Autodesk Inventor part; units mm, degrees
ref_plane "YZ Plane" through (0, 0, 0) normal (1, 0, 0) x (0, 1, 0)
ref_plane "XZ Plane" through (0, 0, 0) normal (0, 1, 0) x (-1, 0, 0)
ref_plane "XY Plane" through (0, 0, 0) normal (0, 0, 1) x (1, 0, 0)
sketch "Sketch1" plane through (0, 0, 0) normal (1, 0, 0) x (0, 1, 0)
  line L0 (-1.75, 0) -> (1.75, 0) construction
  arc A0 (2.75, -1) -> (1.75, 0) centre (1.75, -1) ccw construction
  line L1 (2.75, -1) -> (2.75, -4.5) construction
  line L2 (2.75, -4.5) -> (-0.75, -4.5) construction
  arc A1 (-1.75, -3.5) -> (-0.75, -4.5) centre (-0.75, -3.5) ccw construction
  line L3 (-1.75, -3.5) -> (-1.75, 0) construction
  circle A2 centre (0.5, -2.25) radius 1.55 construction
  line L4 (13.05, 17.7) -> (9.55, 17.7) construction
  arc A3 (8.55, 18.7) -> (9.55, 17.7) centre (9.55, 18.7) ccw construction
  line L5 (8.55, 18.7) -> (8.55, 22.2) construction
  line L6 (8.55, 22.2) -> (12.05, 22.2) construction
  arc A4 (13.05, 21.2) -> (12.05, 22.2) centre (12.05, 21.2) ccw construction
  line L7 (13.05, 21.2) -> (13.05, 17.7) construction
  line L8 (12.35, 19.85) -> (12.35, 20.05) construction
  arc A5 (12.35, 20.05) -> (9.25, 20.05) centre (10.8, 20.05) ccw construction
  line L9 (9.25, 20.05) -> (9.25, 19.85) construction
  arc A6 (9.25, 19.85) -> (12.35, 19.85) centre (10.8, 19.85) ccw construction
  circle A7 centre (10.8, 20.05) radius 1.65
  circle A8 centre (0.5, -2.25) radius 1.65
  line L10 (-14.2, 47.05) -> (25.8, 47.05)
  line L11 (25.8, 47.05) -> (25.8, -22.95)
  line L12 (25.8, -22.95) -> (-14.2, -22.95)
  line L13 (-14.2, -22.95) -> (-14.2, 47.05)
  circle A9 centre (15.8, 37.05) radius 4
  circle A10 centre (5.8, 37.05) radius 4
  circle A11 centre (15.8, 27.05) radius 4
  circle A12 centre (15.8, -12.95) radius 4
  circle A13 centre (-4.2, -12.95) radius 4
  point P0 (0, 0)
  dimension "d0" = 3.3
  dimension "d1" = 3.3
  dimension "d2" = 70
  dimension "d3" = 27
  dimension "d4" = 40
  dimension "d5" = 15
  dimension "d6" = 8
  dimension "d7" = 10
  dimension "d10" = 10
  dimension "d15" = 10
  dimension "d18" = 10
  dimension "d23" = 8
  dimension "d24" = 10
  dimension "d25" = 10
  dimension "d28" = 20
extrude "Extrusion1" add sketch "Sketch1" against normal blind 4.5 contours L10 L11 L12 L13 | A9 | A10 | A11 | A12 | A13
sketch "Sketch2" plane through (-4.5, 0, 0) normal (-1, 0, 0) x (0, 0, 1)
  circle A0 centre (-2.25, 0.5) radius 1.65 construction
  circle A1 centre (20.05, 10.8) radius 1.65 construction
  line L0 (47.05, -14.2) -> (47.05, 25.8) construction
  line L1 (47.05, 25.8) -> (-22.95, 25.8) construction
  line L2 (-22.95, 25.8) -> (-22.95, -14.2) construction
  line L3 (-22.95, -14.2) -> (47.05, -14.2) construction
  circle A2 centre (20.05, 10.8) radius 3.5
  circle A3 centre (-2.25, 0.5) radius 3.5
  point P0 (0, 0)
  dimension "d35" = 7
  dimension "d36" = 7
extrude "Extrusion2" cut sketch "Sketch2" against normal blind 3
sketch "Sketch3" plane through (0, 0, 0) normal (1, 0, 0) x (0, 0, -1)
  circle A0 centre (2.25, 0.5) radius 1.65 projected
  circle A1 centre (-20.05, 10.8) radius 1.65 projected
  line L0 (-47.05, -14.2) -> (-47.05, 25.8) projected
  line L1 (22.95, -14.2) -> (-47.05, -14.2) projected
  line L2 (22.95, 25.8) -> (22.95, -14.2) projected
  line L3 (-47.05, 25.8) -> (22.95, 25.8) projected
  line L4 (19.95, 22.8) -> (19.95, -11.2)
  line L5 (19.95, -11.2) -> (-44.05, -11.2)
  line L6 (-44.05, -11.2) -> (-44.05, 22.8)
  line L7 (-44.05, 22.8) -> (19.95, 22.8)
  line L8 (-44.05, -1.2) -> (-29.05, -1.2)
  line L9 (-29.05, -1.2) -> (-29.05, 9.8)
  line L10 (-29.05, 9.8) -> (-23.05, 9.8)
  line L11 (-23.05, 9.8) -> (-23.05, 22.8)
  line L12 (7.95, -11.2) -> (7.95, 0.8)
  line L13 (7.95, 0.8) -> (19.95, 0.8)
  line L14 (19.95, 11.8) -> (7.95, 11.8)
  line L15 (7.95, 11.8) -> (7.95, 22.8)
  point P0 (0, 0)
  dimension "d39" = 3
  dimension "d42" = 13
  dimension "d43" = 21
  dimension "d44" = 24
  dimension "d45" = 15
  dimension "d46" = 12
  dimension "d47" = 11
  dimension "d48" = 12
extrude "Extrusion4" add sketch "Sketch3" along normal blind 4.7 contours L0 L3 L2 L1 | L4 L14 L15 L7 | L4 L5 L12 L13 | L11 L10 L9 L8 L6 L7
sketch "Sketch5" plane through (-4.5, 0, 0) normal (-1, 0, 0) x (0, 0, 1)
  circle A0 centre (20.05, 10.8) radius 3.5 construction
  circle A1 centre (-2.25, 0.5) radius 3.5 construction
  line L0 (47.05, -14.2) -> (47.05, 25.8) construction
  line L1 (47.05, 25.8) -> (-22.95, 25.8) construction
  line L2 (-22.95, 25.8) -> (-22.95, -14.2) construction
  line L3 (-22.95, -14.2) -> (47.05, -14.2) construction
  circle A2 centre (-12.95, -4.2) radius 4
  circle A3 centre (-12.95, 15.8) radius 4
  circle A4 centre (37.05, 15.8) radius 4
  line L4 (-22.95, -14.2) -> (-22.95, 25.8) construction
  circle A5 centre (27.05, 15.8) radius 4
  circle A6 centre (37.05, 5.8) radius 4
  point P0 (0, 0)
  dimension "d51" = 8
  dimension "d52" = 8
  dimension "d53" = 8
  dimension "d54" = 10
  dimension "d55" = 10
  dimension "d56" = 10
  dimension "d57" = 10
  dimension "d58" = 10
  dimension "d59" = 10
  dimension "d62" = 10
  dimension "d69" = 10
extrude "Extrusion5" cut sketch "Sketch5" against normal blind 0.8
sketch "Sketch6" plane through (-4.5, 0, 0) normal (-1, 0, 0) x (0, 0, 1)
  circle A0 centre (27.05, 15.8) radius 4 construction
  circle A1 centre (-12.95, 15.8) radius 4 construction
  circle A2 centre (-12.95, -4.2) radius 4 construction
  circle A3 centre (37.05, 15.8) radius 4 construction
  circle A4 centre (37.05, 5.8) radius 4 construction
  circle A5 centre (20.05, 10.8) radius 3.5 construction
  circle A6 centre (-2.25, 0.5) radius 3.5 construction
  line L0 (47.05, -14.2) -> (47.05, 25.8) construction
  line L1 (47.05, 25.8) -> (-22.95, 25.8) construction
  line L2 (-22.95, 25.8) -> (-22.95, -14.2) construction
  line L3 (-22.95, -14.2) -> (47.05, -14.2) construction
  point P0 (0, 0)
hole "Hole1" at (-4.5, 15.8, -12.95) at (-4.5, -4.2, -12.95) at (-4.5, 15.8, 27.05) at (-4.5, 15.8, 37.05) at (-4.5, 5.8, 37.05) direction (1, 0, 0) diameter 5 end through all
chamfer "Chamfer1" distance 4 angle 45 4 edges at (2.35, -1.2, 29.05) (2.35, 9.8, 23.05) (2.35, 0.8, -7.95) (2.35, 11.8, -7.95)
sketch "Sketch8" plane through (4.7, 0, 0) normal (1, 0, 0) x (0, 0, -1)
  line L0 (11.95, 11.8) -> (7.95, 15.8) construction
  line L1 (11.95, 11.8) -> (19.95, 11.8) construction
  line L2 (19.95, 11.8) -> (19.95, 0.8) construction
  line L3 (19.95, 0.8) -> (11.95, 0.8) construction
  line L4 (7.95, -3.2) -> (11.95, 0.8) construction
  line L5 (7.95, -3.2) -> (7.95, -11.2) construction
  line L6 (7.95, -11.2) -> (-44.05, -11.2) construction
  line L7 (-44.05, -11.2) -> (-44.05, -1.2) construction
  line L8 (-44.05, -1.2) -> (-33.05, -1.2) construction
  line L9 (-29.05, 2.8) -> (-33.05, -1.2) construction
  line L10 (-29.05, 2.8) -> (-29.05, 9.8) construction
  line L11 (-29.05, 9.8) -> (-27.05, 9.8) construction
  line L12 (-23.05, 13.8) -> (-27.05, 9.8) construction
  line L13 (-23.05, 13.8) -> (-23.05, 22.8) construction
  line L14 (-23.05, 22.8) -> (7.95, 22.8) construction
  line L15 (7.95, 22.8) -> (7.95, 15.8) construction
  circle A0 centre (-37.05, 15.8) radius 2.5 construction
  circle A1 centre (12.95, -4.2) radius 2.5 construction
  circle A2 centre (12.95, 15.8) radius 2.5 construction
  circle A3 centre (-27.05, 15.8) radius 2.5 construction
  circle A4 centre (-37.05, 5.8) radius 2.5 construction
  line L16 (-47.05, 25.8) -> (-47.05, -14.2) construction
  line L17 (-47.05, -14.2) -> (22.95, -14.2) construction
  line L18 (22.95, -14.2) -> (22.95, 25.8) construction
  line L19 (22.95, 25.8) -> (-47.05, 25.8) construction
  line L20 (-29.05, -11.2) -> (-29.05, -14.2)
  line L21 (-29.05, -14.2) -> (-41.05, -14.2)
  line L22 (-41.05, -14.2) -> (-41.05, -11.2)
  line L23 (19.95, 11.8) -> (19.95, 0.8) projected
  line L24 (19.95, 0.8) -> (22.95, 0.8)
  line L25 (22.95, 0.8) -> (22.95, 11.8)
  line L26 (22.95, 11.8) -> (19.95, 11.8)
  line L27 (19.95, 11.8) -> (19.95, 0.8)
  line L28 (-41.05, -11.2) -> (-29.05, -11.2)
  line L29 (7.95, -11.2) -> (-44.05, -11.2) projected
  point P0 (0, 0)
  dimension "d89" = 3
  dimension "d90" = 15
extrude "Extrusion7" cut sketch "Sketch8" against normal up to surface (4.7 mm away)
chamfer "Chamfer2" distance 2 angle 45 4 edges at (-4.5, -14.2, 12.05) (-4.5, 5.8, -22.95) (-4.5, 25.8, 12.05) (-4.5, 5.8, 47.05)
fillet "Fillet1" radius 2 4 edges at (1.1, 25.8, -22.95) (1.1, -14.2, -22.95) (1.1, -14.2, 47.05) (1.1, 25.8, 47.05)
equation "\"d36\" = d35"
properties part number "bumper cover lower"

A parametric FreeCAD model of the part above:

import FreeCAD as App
import Part
import Sketcher
from FreeCAD import Vector


def edges_at(feature, points):
    """Names of the edges that pass closest to the given points."""
    edges = feature.Shape.Edges
    near = lambda p: min(range(len(edges)), key=lambda i: edges[i].distToShape(Part.Vertex(*p))[0])
    return sorted({f"Edge{near(p) + 1}" for p in points})

doc = App.newDocument("Part")
params = doc.addObject("Spreadsheet::Sheet", "Params")
for row, (alias, value) in enumerate([
    ("sketch1_diameter", "3.3 mm"),
    ("sketch1_width", "40 mm"),
    ("sketch1_height", "70 mm"),
    ("pad1_length", "4.5 mm"),
    ("sketch2_diameter", "7 mm"),
    ("pocket1_length", "3 mm"),
    ("sketch3_width", "11 mm"),
    ("sketch3_width2", "12 mm"),
    ("sketch3_width3", "13 mm"),
    ("sketch3_height", "15 mm"),
    ("sketch3_height2", "70 mm"),
    ("pad2_length", "4.7 mm"),
    ("sketch4_diameter", "8 mm"),
    ("pocket2_length", "0.8 mm"),
    ("sketch5_diameter", "5 mm"),
    ("hole_diameter", "5 mm"),
    ("chamfer_size", "4 mm"),
    ("sketch6_width", "3 mm"),
    ("sketch6_width2", "11 mm"),
    ("sketch6_height", "12 mm"),
    ("pocket3_length", "4.7 mm"),
    ("chamfer2_size", "2 mm"),
    ("fillet_radius", "2 mm"),
], start=1):
    params.set(f"A{row}", alias)
    params.set(f"B{row}", "=" + value)
    params.setAlias(f"B{row}", alias)

body = doc.addObject("PartDesign::Body", "Body")

# Sketch on YZ plane
sketch1 = doc.addObject("Sketcher::SketchObject", "Sketch")
body.addObject(sketch1)
sketch1.AttachmentSupport = (doc.YZ_Plane, [""])
sketch1.MapMode = "FlatFace"
sketch1.addGeometry(Part.LineSegment(Vector(25.8, 47, 0), Vector(-14.2, 47, 0)), False)
sketch1.addGeometry(Part.LineSegment(Vector(-14.2, 47, 0), Vector(-14.2, -22.9, 0)), False)
sketch1.addGeometry(Part.LineSegment(Vector(-14.2, -22.9, 0), Vector(25.8, -22.9, 0)), False)
sketch1.addGeometry(Part.LineSegment(Vector(25.8, -22.9, 0), Vector(25.8, 47, 0)), False)
sketch1.addGeometry(Part.Circle(Vector(0.5, -2.2, 0), Vector(0, 0, 1), 1.6), False)
sketch1.addGeometry(Part.Circle(Vector(10.8, 20.1, 0), Vector(0, 0, 1), 1.6), False)
sketch1.addConstraint(Sketcher.Constraint("Coincident", 0, 2, 1, 1))
sketch1.addConstraint(Sketcher.Constraint("Coincident", 1, 2, 2, 1))
sketch1.addConstraint(Sketcher.Constraint("Coincident", 2, 2, 3, 1))
sketch1.addConstraint(Sketcher.Constraint("Coincident", 3, 2, 0, 1))
sketch1.addConstraint(Sketcher.Constraint("Horizontal", 0))
sketch1.addConstraint(Sketcher.Constraint("Vertical", 1))
sketch1.addConstraint(Sketcher.Constraint("Horizontal", 2))
sketch1.addConstraint(Sketcher.Constraint("Vertical", 3))
sketch1.addConstraint(Sketcher.Constraint("Equal", 4, 5))
sketch1.addConstraint(Sketcher.Constraint("Diameter", 4, 3.3))
sketch1.addConstraint(Sketcher.Constraint("DistanceX", 0, 2, 0, 1, 40.0))
sketch1.addConstraint(Sketcher.Constraint("DistanceY", 1, 2, 1, 1, 70.0))
sketch1.addConstraint(Sketcher.Constraint("DistanceY", 5, 3, 0, 2, 27.0))
sketch1.addConstraint(Sketcher.Constraint("DistanceX", 5, 3, 2, 2, 15.0))
sketch1.addConstraint(Sketcher.Constraint("DistanceX", -1, 1, 4, 3, 0.5))
sketch1.addConstraint(Sketcher.Constraint("DistanceX", -1, 1, 5, 3, 10.8))
sketch1.addConstraint(Sketcher.Constraint("DistanceY", 4, 3, 5, 3, 22.3))
sketch1.addConstraint(Sketcher.Constraint("DistanceY", 4, 3, -1, 1, 2.25))
sketch1.setExpression("Constraints[9]", "Params.sketch1_diameter")
sketch1.setExpression("Constraints[10]", "Params.sketch1_width")
sketch1.setExpression("Constraints[11]", "Params.sketch1_height")
pad1 = doc.addObject("PartDesign::Pad", "Pad")
body.addObject(pad1)
pad1.Profile = sketch1
pad1.setExpression("Length", "Params.pad1_length")
pad1.Reversed = True

# Sketch on YZ plane
sketch2 = doc.addObject("Sketcher::SketchObject", "Sketch001")
body.addObject(sketch2)
sketch2.AttachmentSupport = (doc.YZ_Plane, [""])
sketch2.MapMode = "FlatFace"
sketch2.AttachmentOffset = App.Placement(Vector(0, 0, -4.5), App.Rotation())
sketch2.addGeometry(Part.Circle(Vector(10.8, 20.1, 0), Vector(0, 0, 1), 3.5), False)
sketch2.addGeometry(Part.Circle(Vector(0.5, -2.2, 0), Vector(0, 0, 1), 3.5), False)
sketch2.addConstraint(Sketcher.Constraint("Equal", 0, 1))
sketch2.addConstraint(Sketcher.Constraint("Diameter", 0, 7.0))
sketch2.addConstraint(Sketcher.Constraint("DistanceX", -1, 1, 0, 3, 10.8))
sketch2.addConstraint(Sketcher.Constraint("DistanceX", -1, 1, 1, 3, 0.5))
sketch2.addConstraint(Sketcher.Constraint("DistanceY", 1, 3, 0, 3, 22.3))
sketch2.addConstraint(Sketcher.Constraint("DistanceY", -1, 1, 0, 3, 20.05))
sketch2.setExpression("Constraints[1]", "Params.sketch2_diameter")
pocket1 = doc.addObject("PartDesign::Pocket", "Pocket")
body.addObject(pocket1)
pocket1.Profile = sketch2
pocket1.setExpression("Length", "Params.pocket1_length")
pocket1.Reversed = True

# Sketch on YZ plane
sketch3 = doc.addObject("Sketcher::SketchObject", "Sketch002")
body.addObject(sketch3)
sketch3.AttachmentSupport = (doc.YZ_Plane, [""])
sketch3.MapMode = "FlatFace"
sketch3.addGeometry(Part.LineSegment(Vector(26, 47, 0), Vector(-14, 47, 0)), False)
sketch3.addGeometry(Part.LineSegment(Vector(-14, 47, 0), Vector(-14, -23, 0)), False)
sketch3.addGeometry(Part.LineSegment(Vector(-14, -23, 0), Vector(26, -23, 0)), False)
sketch3.addGeometry(Part.LineSegment(Vector(26, -23, 0), Vector(26, 47, 0)), False)
sketch3.addGeometry(Part.LineSegment(Vector(23, 23, 0), Vector(23, -8, 0)), False)
sketch3.addGeometry(Part.LineSegment(Vector(23, -8, 0), Vector(12, -8, 0)), False)
sketch3.addGeometry(Part.LineSegment(Vector(12, -8, 0), Vector(12, -20, 0)), False)
sketch3.addGeometry(Part.LineSegment(Vector(12, -20, 0), Vector(1, -20, 0)), False)
sketch3.addGeometry(Part.LineSegment(Vector(1, -20, 0), Vector(1, -8, 0)), False)
sketch3.addGeometry(Part.LineSegment(Vector(1, -8, 0), Vector(-11, -8, 0)), False)
sketch3.addGeometry(Part.LineSegment(Vector(-11, -8, 0), Vector(-11, 44, 0)), False)
sketch3.addGeometry(Part.LineSegment(Vector(-11, 44, 0), Vector(-1, 44, 0)), False)
sketch3.addGeometry(Part.LineSegment(Vector(-1, 44, 0), Vector(-1, 29, 0)), False)
sketch3.addGeometry(Part.LineSegment(Vector(-1, 29, 0), Vector(10, 29, 0)), False)
sketch3.addGeometry(Part.LineSegment(Vector(10, 29, 0), Vector(10, 23, 0)), False)
sketch3.addGeometry(Part.LineSegment(Vector(10, 23, 0), Vector(23, 23, 0)), False)
sketch3.addConstraint(Sketcher.Constraint("Coincident", 0, 2, 1, 1))
sketch3.addConstraint(Sketcher.Constraint("Coincident", 1, 2, 2, 1))
sketch3.addConstraint(Sketcher.Constraint("Coincident", 2, 2, 3, 1))
sketch3.addConstraint(Sketcher.Constraint("Coincident", 3, 2, 0, 1))
sketch3.addConstraint(Sketcher.Constraint("Coincident", 4, 2, 5, 1))
sketch3.addConstraint(Sketcher.Constraint("Coincident", 5, 2, 6, 1))
sketch3.addConstraint(Sketcher.Constraint("Coincident", 6, 2, 7, 1))
sketch3.addConstraint(Sketcher.Constraint("Coincident", 7, 2, 8, 1))
sketch3.addConstraint(Sketcher.Constraint("Coincident", 8, 2, 9, 1))
sketch3.addConstraint(Sketcher.Constraint("Coincident", 9, 2, 10, 1))
sketch3.addConstraint(Sketcher.Constraint("Coincident", 10, 2, 11, 1))
sketch3.addConstraint(Sketcher.Constraint("Coincident", 11, 2, 12, 1))
sketch3.addConstraint(Sketcher.Constraint("Coincident", 12, 2, 13, 1))
sketch3.addConstraint(Sketcher.Constraint("Coincident", 13, 2, 14, 1))
sketch3.addConstraint(Sketcher.Constraint("Coincident", 14, 2, 15, 1))
sketch3.addConstraint(Sketcher.Constraint("Coincident", 15, 2, 4, 1))
sketch3.addConstraint(Sketcher.Constraint("Horizontal", 0))
sketch3.addConstraint(Sketcher.Constraint("Vertical", 1))
sketch3.addConstraint(Sketcher.Constraint("Horizontal", 2))
sketch3.addConstraint(Sketcher.Constraint("Vertical", 3))
sketch3.addConstraint(Sketcher.Constraint("Vertical", 4))
sketch3.addConstraint(Sketcher.Constraint("Horizontal", 5))
sketch3.addConstraint(Sketcher.Constraint("Vertical", 6))
sketch3.addConstraint(Sketcher.Constraint("Horizontal", 7))
sketch3.addConstraint(Sketcher.Constraint("Vertical", 8))
sketch3.addConstraint(Sketcher.Constraint("Horizontal", 9))
sketch3.addConstraint(Sketcher.Constraint("Vertical", 10))
sketch3.addConstraint(Sketcher.Constraint("Horizontal", 11))
sketch3.addConstraint(Sketcher.Constraint("Vertical", 12))
sketch3.addConstraint(Sketcher.Constraint("Horizontal", 13))
sketch3.addConstraint(Sketcher.Constraint("Vertical", 14))
sketch3.addConstraint(Sketcher.Constraint("Horizontal", 15))
sketch3.addConstraint(Sketcher.Constraint("Horizontal", 5, 2, 8, 2))
sketch3.addConstraint(Sketcher.Constraint("Equal", 5, 7))
sketch3.addConstraint(Sketcher.Constraint("Equal", 7, 13))
sketch3.addConstraint(Sketcher.Constraint("Equal", 9, 6))
sketch3.addConstraint(Sketcher.Constraint("DistanceX", 5, 2, 5, 1, 11.0))
sketch3.addConstraint(Sketcher.Constraint("DistanceX", 9, 2, 9, 1, 12.0))
sketch3.addConstraint(Sketcher.Constraint("DistanceX", 15, 1, 15, 2, 13.0))
sketch3.addConstraint(Sketcher.Constraint("DistanceY", 12, 2, 12, 1, 15.0))
sketch3.addConstraint(Sketcher.Constraint("DistanceX", 4, 2, 2, 2, 3.0))
sketch3.addConstraint(Sketcher.Constraint("DistanceY", 2, 2, 4, 2, 15.0))
sketch3.addConstraint(Sketcher.Constraint("DistanceX", 1, 2, 7, 2, 15.0))
sketch3.addConstraint(Sketcher.Constraint("DistanceY", 10, 2, 0, 2, 3.0))
sketch3.addConstraint(Sketcher.Constraint("DistanceY", 14, 2, 11, 2, 21.0))
sketch3.addConstraint(Sketcher.Constraint("DistanceY", 1, 2, 1, 1, 70.0))
sketch3.addConstraint(Sketcher.Constraint("DistanceX", 0, 2, -1, 1, 14.2))
sketch3.addConstraint(Sketcher.Constraint("DistanceY", -1, 1, 0, 2, 47.05))
sketch3.setExpression("Constraints[36]", "Params.sketch3_width")
sketch3.setExpression("Constraints[37]", "Params.sketch3_width2")
sketch3.setExpression("Constraints[38]", "Params.sketch3_width3")
sketch3.setExpression("Constraints[39]", "Params.sketch3_height")
sketch3.setExpression("Constraints[45]", "Params.sketch3_height2")
pad2 = doc.addObject("PartDesign::Pad", "Pad001")
body.addObject(pad2)
pad2.Profile = sketch3
pad2.setExpression("Length", "Params.pad2_length")

# Sketch on YZ plane
sketch4 = doc.addObject("Sketcher::SketchObject", "Sketch003")
body.addObject(sketch4)
sketch4.AttachmentSupport = (doc.YZ_Plane, [""])
sketch4.MapMode = "FlatFace"
sketch4.AttachmentOffset = App.Placement(Vector(0, 0, -4.5), App.Rotation())
sketch4.addGeometry(Part.Circle(Vector(-4.2, -12.9, 0), Vector(0, 0, 1), 4), False)
sketch4.addGeometry(Part.Circle(Vector(15.8, -12.9, 0), Vector(0, 0, 1), 4), False)
sketch4.addGeometry(Part.Circle(Vector(15.8, 37, 0), Vector(0, 0, 1), 4), False)
sketch4.addGeometry(Part.Circle(Vector(15.8, 27.1, 0), Vector(0, 0, 1), 4), False)
sketch4.addGeometry(Part.Circle(Vector(5.8, 37, 0), Vector(0, 0, 1), 4), False)
sketch4.addConstraint(Sketcher.Constraint("Equal", 0, 1))
sketch4.addConstraint(Sketcher.Constraint("Equal", 1, 2))
sketch4.addConstraint(Sketcher.Constraint("Equal", 2, 3))
sketch4.addConstraint(Sketcher.Constraint("Equal", 3, 4))
sketch4.addConstraint(Sketcher.Constraint("Horizontal", 0, 3, 1, 3))
sketch4.addConstraint(Sketcher.Constraint("Horizontal", 2, 3, 4, 3))
sketch4.addConstraint(Sketcher.Constraint("Vertical", 1, 3, 2, 3))
sketch4.addConstraint(Sketcher.Constraint("Vertical", 2, 3, 3, 3))
sketch4.addConstraint(Sketcher.Constraint("Diameter", 0, 8.0))
sketch4.addConstraint(Sketcher.Constraint("DistanceY", 3, 3, 2, 3, 10.0))
sketch4.addConstraint(Sketcher.Constraint("DistanceX", 4, 3, 2, 3, 10.0))
sketch4.addConstraint(Sketcher.Constraint("DistanceX", 0, 3, 4, 3, 10.0))
sketch4.addConstraint(Sketcher.Constraint("DistanceY", 1, 3, 2, 3, 50.0))
sketch4.addConstraint(Sketcher.Constraint("DistanceX", 0, 3, -1, 1, 4.2))
sketch4.addConstraint(Sketcher.Constraint("DistanceY", 0, 3, -1, 1, 12.95))
sketch4.setExpression("Constraints[8]", "Params.sketch4_diameter")
pocket2 = doc.addObject("PartDesign::Pocket", "Pocket001")
body.addObject(pocket2)
pocket2.Profile = sketch4
pocket2.setExpression("Length", "Params.pocket2_length")
pocket2.Reversed = True

# Sketch on YZ plane
sketch5 = doc.addObject("Sketcher::SketchObject", "Sketch004")
body.addObject(sketch5)
sketch5.AttachmentSupport = (doc.YZ_Plane, [""])
sketch5.MapMode = "FlatFace"
sketch5.AttachmentOffset = App.Placement(Vector(0, 0, -4.5), App.Rotation())
sketch5.addGeometry(Part.Circle(Vector(15.8, -12.9, 0), Vector(0, 0, 1), 2.5), False)
sketch5.addGeometry(Part.Circle(Vector(-4.2, -12.9, 0), Vector(0, 0, 1), 2.5), False)
sketch5.addGeometry(Part.Circle(Vector(15.8, 27.1, 0), Vector(0, 0, 1), 2.5), False)
sketch5.addGeometry(Part.Circle(Vector(15.8, 37, 0), Vector(0, 0, 1), 2.5), False)
sketch5.addGeometry(Part.Circle(Vector(5.8, 37, 0), Vector(0, 0, 1), 2.5), False)
sketch5.addConstraint(Sketcher.Constraint("Equal", 0, 1))
sketch5.addConstraint(Sketcher.Constraint("Equal", 1, 2))
sketch5.addConstraint(Sketcher.Constraint("Equal", 2, 3))
sketch5.addConstraint(Sketcher.Constraint("Equal", 3, 4))
sketch5.addConstraint(Sketcher.Constraint("Horizontal", 0, 3, 1, 3))
sketch5.addConstraint(Sketcher.Constraint("Horizontal", 3, 3, 4, 3))
sketch5.addConstraint(Sketcher.Constraint("Vertical", 0, 3, 2, 3))
sketch5.addConstraint(Sketcher.Constraint("Vertical", 2, 3, 3, 3))
sketch5.addConstraint(Sketcher.Constraint("Diameter", 0, 5.0))
sketch5.addConstraint(Sketcher.Constraint("DistanceX", 1, 3, 0, 3, 20.0))
sketch5.addConstraint(Sketcher.Constraint("DistanceY", 0, 3, 2, 3, 40.0))
sketch5.addConstraint(Sketcher.Constraint("DistanceY", 2, 3, 3, 3, 10.0))
sketch5.addConstraint(Sketcher.Constraint("DistanceX", 4, 3, 3, 3, 10.0))
sketch5.addConstraint(Sketcher.Constraint("DistanceX", -1, 1, 0, 3, 15.8))
sketch5.addConstraint(Sketcher.Constraint("DistanceY", 0, 3, -1, 1, 12.95))
sketch5.setExpression("Constraints[8]", "Params.sketch5_diameter")
doc.recompute()
hole = doc.addObject("PartDesign::Hole", "Hole")
body.addObject(hole)
hole.Profile = sketch5
hole.ThreadType = "None"
hole.setExpression("Diameter", "Params.hole_diameter")
hole.DepthType = "ThroughAll"
hole.Reversed = True
doc.recompute()

chamfer = doc.addObject("PartDesign::Chamfer", "Chamfer")
body.addObject(chamfer)
chamfer.Base = (hole, edges_at(hole, [
    (2.35, -1.2, 29.05),
    (2.35, 9.8, 23.05),
    (2.35, 0.8, -7.95),
    (2.35, 11.8, -7.95),
]))
chamfer.setExpression("Size", "Params.chamfer_size")

# Sketch on YZ plane
sketch6 = doc.addObject("Sketcher::SketchObject", "Sketch005")
body.addObject(sketch6)
sketch6.AttachmentSupport = (doc.YZ_Plane, [""])
sketch6.MapMode = "FlatFace"
sketch6.AttachmentOffset = App.Placement(Vector(0, 0, 4.7), App.Rotation())
sketch6.addGeometry(Part.LineSegment(Vector(-14.2, 29.1, 0), Vector(-11.2, 29.1, 0)), False)
sketch6.addGeometry(Part.LineSegment(Vector(-11.2, 29.1, 0), Vector(-11.2, 41, 0)), False)
sketch6.addGeometry(Part.LineSegment(Vector(-11.2, 41, 0), Vector(-14.2, 41, 0)), False)
sketch6.addGeometry(Part.LineSegment(Vector(-14.2, 41, 0), Vector(-14.2, 29.1, 0)), False)
sketch6.addGeometry(Part.LineSegment(Vector(11.8, -22.9, 0), Vector(11.8, -19.9, 0)), False)
sketch6.addGeometry(Part.LineSegment(Vector(11.8, -19.9, 0), Vector(0.8, -19.9, 0)), False)
sketch6.addGeometry(Part.LineSegment(Vector(0.8, -19.9, 0), Vector(0.8, -22.9, 0)), False)
sketch6.addGeometry(Part.LineSegment(Vector(0.8, -22.9, 0), Vector(11.8, -22.9, 0)), False)
sketch6.addConstraint(Sketcher.Constraint("Coincident", 0, 2, 1, 1))
sketch6.addConstraint(Sketcher.Constraint("Coincident", 1, 2, 2, 1))
sketch6.addConstraint(Sketcher.Constraint("Coincident", 2, 2, 3, 1))
sketch6.addConstraint(Sketcher.Constraint("Coincident", 3, 2, 0, 1))
sketch6.addConstraint(Sketcher.Constraint("Coincident", 4, 2, 5, 1))
sketch6.addConstraint(Sketcher.Constraint("Coincident", 5, 2, 6, 1))
sketch6.addConstraint(Sketcher.Constraint("Coincident", 6, 2, 7, 1))
sketch6.addConstraint(Sketcher.Constraint("Coincident", 7, 2, 4, 1))
sketch6.addConstraint(Sketcher.Constraint("Horizontal", 0))
sketch6.addConstraint(Sketcher.Constraint("Vertical", 1))
sketch6.addConstraint(Sketcher.Constraint("Horizontal", 2))
sketch6.addConstraint(Sketcher.Constraint("Vertical", 3))
sketch6.addConstraint(Sketcher.Constraint("Vertical", 4))
sketch6.addConstraint(Sketcher.Constraint("Horizontal", 5))
sketch6.addConstraint(Sketcher.Constraint("Vertical", 6))
sketch6.addConstraint(Sketcher.Constraint("Horizontal", 7))
sketch6.addConstraint(Sketcher.Constraint("Equal", 2, 4))
sketch6.addConstraint(Sketcher.Constraint("DistanceX", 0, 1, 0, 2, 3.0))
sketch6.addConstraint(Sketcher.Constraint("DistanceX", 3, 2, 5, 2, 15.0))
sketch6.addConstraint(Sketcher.Constraint("DistanceX", 5, 2, 5, 1, 11.0))
sketch6.addConstraint(Sketcher.Constraint("DistanceY", 1, 1, 1, 2, 12.0))
sketch6.addConstraint(Sketcher.Constraint("DistanceY", 4, 2, 0, 2, 49.0))
sketch6.addConstraint(Sketcher.Constraint("DistanceX", 0, 2, -1, 1, 11.2))
sketch6.addConstraint(Sketcher.Constraint("DistanceY", -1, 1, 0, 2, 29.05))
sketch6.setExpression("Constraints[17]", "Params.sketch6_width")
sketch6.setExpression("Constraints[19]", "Params.sketch6_width2")
sketch6.setExpression("Constraints[20]", "Params.sketch6_height")
pocket3 = doc.addObject("PartDesign::Pocket", "Pocket002")
body.addObject(pocket3)
pocket3.Profile = sketch6
pocket3.setExpression("Length", "Params.pocket3_length")
doc.recompute()

chamfer2 = doc.addObject("PartDesign::Chamfer", "Chamfer001")
body.addObject(chamfer2)
chamfer2.Base = (pocket3, edges_at(pocket3, [
    (-4.5, -14.2, 12.05),
    (-4.5, 5.8, -22.95),
    (-4.5, 25.8, 12.05),
    (-4.5, 5.8, 47.05),
]))
chamfer2.setExpression("Size", "Params.chamfer2_size")
doc.recompute()

fillet = doc.addObject("PartDesign::Fillet", "Fillet")
body.addObject(fillet)
fillet.Base = (chamfer2, edges_at(chamfer2, [
    (1.1, 25.8, -22.95),
    (1.1, -14.2, -22.95),
    (1.1, -14.2, 47.05),
    (1.1, 25.8, 47.05),
]))
fillet.setExpression("Radius", "Params.fillet_radius")

doc.recompute()
